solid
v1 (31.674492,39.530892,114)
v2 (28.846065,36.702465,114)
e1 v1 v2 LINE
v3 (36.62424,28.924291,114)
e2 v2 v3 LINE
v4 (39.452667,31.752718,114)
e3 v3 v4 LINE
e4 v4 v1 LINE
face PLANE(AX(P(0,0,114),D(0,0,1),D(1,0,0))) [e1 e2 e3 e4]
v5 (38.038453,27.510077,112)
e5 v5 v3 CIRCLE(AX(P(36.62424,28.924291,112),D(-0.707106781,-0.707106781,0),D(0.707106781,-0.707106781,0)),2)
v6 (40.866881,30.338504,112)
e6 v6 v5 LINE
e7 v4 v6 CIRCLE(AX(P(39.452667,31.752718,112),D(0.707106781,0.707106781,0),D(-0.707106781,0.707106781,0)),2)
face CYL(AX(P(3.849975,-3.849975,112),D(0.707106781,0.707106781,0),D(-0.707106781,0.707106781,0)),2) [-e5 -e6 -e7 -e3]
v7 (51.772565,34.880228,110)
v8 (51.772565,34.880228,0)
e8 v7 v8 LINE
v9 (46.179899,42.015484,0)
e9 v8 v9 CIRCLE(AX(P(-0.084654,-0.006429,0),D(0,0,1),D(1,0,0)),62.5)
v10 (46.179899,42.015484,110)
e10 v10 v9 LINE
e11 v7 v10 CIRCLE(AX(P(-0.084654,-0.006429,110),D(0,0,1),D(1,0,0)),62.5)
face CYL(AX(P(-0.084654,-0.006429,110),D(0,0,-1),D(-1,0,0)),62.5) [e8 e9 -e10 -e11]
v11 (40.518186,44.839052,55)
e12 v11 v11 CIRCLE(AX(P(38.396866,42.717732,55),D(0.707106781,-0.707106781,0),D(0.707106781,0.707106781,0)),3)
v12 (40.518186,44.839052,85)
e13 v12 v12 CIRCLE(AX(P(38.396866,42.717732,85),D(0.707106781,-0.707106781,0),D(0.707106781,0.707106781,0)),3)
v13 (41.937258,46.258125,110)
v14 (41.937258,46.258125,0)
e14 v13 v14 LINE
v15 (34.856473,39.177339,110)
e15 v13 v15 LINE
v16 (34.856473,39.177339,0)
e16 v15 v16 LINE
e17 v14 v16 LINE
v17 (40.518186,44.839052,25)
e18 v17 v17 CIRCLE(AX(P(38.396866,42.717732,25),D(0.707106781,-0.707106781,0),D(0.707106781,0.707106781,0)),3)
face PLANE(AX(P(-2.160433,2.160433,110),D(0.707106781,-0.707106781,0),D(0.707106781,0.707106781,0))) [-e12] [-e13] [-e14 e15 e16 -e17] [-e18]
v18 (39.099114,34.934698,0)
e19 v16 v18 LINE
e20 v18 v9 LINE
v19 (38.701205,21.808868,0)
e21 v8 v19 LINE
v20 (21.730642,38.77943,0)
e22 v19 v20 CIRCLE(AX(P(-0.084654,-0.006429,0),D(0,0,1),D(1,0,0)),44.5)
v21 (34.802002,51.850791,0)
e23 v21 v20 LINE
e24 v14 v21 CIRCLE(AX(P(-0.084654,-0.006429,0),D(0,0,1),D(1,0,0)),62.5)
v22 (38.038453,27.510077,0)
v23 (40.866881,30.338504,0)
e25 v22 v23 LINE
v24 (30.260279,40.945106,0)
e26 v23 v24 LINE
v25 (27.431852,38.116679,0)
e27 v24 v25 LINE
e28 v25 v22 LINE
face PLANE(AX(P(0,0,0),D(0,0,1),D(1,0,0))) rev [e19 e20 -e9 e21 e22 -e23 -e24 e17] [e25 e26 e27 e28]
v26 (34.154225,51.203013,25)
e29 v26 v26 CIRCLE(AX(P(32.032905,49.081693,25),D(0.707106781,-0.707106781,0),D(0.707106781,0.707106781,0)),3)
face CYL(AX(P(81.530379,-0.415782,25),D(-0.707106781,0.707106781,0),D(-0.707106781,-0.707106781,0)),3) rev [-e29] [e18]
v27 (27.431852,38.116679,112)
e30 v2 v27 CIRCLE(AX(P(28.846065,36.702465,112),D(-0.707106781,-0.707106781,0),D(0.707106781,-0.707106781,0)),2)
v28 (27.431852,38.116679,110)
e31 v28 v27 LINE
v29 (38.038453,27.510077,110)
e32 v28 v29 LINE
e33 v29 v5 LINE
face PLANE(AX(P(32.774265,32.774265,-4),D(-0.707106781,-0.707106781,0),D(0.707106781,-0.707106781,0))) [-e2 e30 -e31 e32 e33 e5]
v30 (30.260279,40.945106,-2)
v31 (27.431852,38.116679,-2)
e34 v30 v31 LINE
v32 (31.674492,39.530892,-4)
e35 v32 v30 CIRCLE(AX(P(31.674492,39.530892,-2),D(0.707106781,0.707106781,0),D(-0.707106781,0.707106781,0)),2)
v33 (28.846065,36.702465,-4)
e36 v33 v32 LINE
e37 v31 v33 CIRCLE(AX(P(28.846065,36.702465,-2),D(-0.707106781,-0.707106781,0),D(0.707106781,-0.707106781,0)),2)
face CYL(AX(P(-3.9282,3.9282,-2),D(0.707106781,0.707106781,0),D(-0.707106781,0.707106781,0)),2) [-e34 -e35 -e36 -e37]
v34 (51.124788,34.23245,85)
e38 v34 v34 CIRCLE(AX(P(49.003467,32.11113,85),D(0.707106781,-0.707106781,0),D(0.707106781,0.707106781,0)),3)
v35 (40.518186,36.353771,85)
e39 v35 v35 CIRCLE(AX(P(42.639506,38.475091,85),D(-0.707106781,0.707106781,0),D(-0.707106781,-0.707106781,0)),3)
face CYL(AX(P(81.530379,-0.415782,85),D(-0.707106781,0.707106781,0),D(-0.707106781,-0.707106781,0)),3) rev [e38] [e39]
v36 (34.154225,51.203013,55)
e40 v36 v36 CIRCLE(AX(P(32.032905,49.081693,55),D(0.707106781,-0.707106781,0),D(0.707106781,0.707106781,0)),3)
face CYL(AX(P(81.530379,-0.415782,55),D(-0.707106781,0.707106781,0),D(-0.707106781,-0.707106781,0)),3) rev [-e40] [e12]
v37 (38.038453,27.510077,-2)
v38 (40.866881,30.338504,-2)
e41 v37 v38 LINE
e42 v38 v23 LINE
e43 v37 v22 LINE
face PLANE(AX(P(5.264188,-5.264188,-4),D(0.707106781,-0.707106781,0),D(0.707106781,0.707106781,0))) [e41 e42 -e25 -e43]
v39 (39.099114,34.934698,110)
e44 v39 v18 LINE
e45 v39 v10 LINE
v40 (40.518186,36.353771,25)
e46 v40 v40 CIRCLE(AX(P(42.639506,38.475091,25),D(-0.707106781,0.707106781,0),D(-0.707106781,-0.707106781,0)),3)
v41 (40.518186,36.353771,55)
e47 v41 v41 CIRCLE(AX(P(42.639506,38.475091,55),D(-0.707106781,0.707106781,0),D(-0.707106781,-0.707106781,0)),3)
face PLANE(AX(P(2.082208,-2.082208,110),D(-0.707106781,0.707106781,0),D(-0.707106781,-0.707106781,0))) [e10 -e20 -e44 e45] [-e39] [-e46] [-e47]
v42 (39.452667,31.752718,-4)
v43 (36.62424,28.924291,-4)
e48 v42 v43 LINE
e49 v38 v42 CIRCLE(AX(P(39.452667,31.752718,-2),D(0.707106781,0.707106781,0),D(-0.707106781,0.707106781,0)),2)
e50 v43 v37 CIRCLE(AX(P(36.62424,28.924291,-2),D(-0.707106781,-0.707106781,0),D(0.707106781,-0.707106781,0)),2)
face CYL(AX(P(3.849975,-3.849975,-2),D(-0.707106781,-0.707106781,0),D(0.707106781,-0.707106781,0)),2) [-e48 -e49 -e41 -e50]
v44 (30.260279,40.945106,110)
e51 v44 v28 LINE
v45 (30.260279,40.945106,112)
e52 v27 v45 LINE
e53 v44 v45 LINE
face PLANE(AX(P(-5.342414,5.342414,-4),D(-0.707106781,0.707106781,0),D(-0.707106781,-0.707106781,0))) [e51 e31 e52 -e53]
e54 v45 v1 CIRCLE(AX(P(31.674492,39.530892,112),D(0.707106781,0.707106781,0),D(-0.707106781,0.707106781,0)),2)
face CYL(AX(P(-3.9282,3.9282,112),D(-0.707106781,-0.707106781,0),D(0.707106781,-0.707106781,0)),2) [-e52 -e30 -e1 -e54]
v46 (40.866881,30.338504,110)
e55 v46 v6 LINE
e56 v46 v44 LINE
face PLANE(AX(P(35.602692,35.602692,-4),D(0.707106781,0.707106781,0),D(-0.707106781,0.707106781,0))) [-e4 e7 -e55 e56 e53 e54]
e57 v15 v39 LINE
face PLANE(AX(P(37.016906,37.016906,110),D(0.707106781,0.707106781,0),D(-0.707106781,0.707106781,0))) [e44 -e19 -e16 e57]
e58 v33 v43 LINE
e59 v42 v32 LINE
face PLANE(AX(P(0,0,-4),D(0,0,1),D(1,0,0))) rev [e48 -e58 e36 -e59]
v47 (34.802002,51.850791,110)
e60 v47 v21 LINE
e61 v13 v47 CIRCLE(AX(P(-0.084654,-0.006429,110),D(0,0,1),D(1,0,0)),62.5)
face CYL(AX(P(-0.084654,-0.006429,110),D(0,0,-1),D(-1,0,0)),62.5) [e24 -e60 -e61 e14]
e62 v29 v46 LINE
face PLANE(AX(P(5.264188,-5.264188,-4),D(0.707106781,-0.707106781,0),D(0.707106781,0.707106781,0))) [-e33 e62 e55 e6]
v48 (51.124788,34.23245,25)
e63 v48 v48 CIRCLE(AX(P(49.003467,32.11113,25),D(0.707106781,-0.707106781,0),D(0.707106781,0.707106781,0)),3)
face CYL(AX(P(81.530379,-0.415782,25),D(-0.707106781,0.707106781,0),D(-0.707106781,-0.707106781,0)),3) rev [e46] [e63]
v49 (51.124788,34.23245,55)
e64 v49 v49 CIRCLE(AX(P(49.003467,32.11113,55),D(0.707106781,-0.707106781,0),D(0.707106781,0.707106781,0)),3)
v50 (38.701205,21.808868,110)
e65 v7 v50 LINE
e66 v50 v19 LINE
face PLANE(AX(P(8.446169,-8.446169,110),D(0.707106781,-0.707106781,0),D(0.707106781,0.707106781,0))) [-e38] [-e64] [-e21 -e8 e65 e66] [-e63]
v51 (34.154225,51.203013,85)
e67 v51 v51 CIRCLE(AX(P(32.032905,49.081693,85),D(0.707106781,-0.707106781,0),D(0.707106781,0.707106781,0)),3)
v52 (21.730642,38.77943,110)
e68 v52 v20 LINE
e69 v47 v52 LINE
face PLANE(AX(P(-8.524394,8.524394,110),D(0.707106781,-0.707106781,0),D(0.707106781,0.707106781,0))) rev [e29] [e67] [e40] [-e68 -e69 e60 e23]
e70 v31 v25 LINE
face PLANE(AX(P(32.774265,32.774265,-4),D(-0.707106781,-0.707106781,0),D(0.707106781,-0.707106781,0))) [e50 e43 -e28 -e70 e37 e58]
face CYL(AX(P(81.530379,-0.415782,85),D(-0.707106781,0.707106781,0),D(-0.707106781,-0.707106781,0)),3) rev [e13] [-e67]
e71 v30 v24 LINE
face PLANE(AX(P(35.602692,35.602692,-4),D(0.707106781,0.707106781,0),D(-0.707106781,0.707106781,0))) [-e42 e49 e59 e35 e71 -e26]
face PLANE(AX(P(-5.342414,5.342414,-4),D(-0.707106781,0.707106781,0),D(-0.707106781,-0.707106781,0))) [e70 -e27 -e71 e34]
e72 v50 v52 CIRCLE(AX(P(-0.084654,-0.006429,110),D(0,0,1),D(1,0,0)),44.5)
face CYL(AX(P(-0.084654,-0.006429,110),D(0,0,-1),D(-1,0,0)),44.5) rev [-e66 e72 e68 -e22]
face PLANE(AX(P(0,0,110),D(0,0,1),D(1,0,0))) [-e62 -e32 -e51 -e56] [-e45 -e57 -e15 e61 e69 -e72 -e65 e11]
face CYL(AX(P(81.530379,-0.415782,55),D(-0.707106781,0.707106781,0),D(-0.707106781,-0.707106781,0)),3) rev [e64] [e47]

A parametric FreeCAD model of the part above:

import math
import FreeCAD as App
import Part
import Sketcher
Q = App.Units.Quantity


def edges_at(feature, points):
    """Names of the edges that pass closest to the given points."""
    edges = feature.Shape.Edges
    near = lambda p: min(range(len(edges)), key=lambda i: edges[i].distToShape(Part.Vertex(*p))[0])
    return sorted({f"Edge{near(p) + 1}" for p in points})


def add_polygon(sketch, points):
    """Adds a closed chain of lines whose ends are joined by coincident constraints."""
    first, n = sketch.GeometryCount, len(points)
    for a, b in zip(points, points[1:] + points[:1]):
        sketch.addGeometry(Part.LineSegment(App.Vector(*a, 0), App.Vector(*b, 0)), False)
    for i in range(n):
        sketch.addConstraint(Sketcher.Constraint("Coincident", first + i, 2, first + (i + 1) % n, 1))

doc = App.newDocument("Part")
body = doc.addObject("PartDesign::Body", "Body")

# Sketch on XY plane
sketch1 = body.newObject("Sketcher::SketchObject", "Sketch")
sketch1.AttachmentSupport = (doc.getObject("XY_Plane"), [""])
sketch1.MapMode = "FlatFace"
sketch1.addGeometry(Part.ArcOfCircle(Part.Circle(App.Vector(-0.084654, -0.006428, 0), App.Vector(0, 0, 1), 62.5), math.radians(47.751255), math.radians(56.069525)), False)
sketch1.addGeometry(Part.LineSegment(App.Vector(34.802002, 51.850791, 0), App.Vector(21.730642, 38.77943, 0)), False)
sketch1.addGeometry(Part.ArcOfCircle(Part.Circle(App.Vector(-0.084654, -0.006429, 0), App.Vector(0, 0, 1), 44.5), math.radians(29.35579), math.radians(60.64421)), False)
sketch1.addGeometry(Part.LineSegment(App.Vector(38.701205, 21.808868, 0), App.Vector(51.772565, 34.880228, 0)), False)
sketch1.addGeometry(Part.ArcOfCircle(Part.Circle(App.Vector(-0.084654, -0.006429, 0), App.Vector(0, 0, 1), 62.5), math.radians(33.930475), math.radians(42.248745)), False)
sketch1.addGeometry(Part.LineSegment(App.Vector(46.179899, 42.015484, 0), App.Vector(39.099114, 34.934698, 0)), False)
sketch1.addGeometry(Part.LineSegment(App.Vector(39.099114, 34.934698, 0), App.Vector(34.856473, 39.177339, 0)), False)
sketch1.addGeometry(Part.LineSegment(App.Vector(34.856473, 39.177339, 0), App.Vector(41.937258, 46.258125, 0)), False)
sketch1.addConstraint(Sketcher.Constraint("Coincident", 0, 2, 1, 1))
sketch1.addConstraint(Sketcher.Constraint("Coincident", 1, 2, 2, 2))
sketch1.addConstraint(Sketcher.Constraint("Coincident", 2, 1, 3, 1))
sketch1.addConstraint(Sketcher.Constraint("Coincident", 3, 2, 4, 1))
sketch1.addConstraint(Sketcher.Constraint("Coincident", 4, 2, 5, 1))
sketch1.addConstraint(Sketcher.Constraint("Coincident", 5, 2, 6, 1))
sketch1.addConstraint(Sketcher.Constraint("Coincident", 6, 2, 7, 1))
sketch1.addConstraint(Sketcher.Constraint("Coincident", 7, 2, 0, 1))
sketch1.addConstraint(Sketcher.Constraint("Coincident", 2, 3, 0, 3))
sketch1.addConstraint(Sketcher.Constraint("Coincident", 4, 3, 0, 3))
sketch1.addConstraint(Sketcher.Constraint("Equal", 0, 4))
sketch1.addConstraint(Sketcher.Constraint("Parallel", 1, 3))
sketch1.addConstraint(Sketcher.Constraint("Parallel", 3, 5))
sketch1.addConstraint(Sketcher.Constraint("Perpendicular", 5, 6))
sketch1.addConstraint(Sketcher.Constraint("Perpendicular", 6, 7))
sketch1.addConstraint(Sketcher.Constraint("Equal", 1, 3))
sketch1.addConstraint(Sketcher.Constraint("Equal", 5, 7))
sketch1.addConstraint(Sketcher.Constraint("Radius", 0, Q("62.5 mm")))
sketch1.addConstraint(Sketcher.Constraint("Radius", 2, Q("44.5 mm")))
sketch1.addConstraint(Sketcher.Constraint("Angle", 1, Q("-135 deg")))
sketch1.addConstraint(Sketcher.Constraint("Distance", 6, Q("6 mm")))
sketch1.addConstraint(Sketcher.Constraint("DistanceX", -1, 1, 4, 2, Q("46.179899 mm")))
sketch1.addConstraint(Sketcher.Constraint("DistanceY", -1, 1, 5, 2, Q("34.934698 mm")))
sketch1.addConstraint(Sketcher.Constraint("DistanceY", 0, 3, -1, 1, Q("0.006428 mm")))
sketch1.addConstraint(Sketcher.Constraint("DistanceY", -1, 1, 0, 2, Q("51.850791 mm")))
pad1 = body.newObject("PartDesign::Pad", "Pad")
pad1.Profile = sketch1
pad1.Length = 110

# Sketch on an angled plane
sketch2 = body.newObject("Sketcher::SketchObject", "Sketch001")
sketch2.Placement = App.Placement(App.Vector(2.082208, -2.082208, 0), App.Rotation(App.Vector(0, 0, 1), App.Vector(0.707106781, 0.707106781, 0), App.Vector(-0.707106781, 0.707106781, 0), "ZXY"))
sketch2.addGeometry(Part.Circle(App.Vector(85, 57.356682, 0), App.Vector(0, 0, 1), 3), False)
sketch2.addGeometry(Part.Circle(App.Vector(55, 57.356682, 0), App.Vector(0, 0, 1), 3), False)
sketch2.addGeometry(Part.Circle(App.Vector(25, 57.356682, 0), App.Vector(0, 0, 1), 3), False)
sketch2.addConstraint(Sketcher.Constraint("Equal", 0, 1))
sketch2.addConstraint(Sketcher.Constraint("Equal", 1, 2))
sketch2.addConstraint(Sketcher.Constraint("Horizontal", 0, 3, 1, 3))
sketch2.addConstraint(Sketcher.Constraint("Horizontal", 1, 3, 2, 3))
sketch2.addConstraint(Sketcher.Constraint("Diameter", 0, Q("6 mm")))
sketch2.addConstraint(Sketcher.Constraint("DistanceX", -1, 1, 0, 3, Q("85 mm")))
sketch2.addConstraint(Sketcher.Constraint("DistanceX", -1, 1, 1, 3, Q("55 mm")))
sketch2.addConstraint(Sketcher.Constraint("DistanceX", -1, 1, 2, 3, Q("25 mm")))
sketch2.addConstraint(Sketcher.Constraint("DistanceY", -1, 1, 0, 3, Q("57.356682 mm")))
pocket1 = body.newObject("PartDesign::Pocket", "Pocket")
pocket1.Profile = sketch2
pocket1.Length = 110
pocket1.Midplane = True

# Sketch on XY plane
sketch3 = body.newObject("Sketcher::SketchObject", "Sketch002")
sketch3.AttachmentSupport = (doc.getObject("XY_Plane"), [""])
sketch3.MapMode = "FlatFace"
add_polygon(sketch3, [(38.038453, 27.510077), (40.866881, 30.338504), (30.260279, 40.945106), (27.431852, 38.116679)])  # lines 0-3
sketch3.addConstraint(Sketcher.Constraint("Perpendicular", 0, 1))
sketch3.addConstraint(Sketcher.Constraint("Perpendicular", 1, 2))
sketch3.addConstraint(Sketcher.Constraint("Perpendicular", 2, 3))
sketch3.addConstraint(Sketcher.Constraint("Angle", 0, Q("45 deg")))
sketch3.addConstraint(Sketcher.Constraint("Distance", 0, Q("4 mm")))
sketch3.addConstraint(Sketcher.Constraint("Distance", 1, Q("15 mm")))
sketch3.addConstraint(Sketcher.Constraint("DistanceX", -1, 1, 0, 2, Q("40.866881 mm")))
sketch3.addConstraint(Sketcher.Constraint("DistanceY", -1, 1, 2, 2, Q("38.116679 mm")))
pad2 = body.newObject("PartDesign::Pad", "Pad001")
pad2.Profile = sketch3
pad2.Type = "TwoLengths"
pad2.Length = 114
pad2.Length2 = 4
doc.recompute()

fillet = body.newObject("PartDesign::Fillet", "Fillet")
fillet.Base = (pad2, edges_at(pad2, [
    (39.453, 28.924, -4),
    (28.846, 39.531, -4),
    (39.453, 28.924, 114),
    (28.846, 39.531, 114),
]))
fillet.Radius = 2

doc.recompute()
